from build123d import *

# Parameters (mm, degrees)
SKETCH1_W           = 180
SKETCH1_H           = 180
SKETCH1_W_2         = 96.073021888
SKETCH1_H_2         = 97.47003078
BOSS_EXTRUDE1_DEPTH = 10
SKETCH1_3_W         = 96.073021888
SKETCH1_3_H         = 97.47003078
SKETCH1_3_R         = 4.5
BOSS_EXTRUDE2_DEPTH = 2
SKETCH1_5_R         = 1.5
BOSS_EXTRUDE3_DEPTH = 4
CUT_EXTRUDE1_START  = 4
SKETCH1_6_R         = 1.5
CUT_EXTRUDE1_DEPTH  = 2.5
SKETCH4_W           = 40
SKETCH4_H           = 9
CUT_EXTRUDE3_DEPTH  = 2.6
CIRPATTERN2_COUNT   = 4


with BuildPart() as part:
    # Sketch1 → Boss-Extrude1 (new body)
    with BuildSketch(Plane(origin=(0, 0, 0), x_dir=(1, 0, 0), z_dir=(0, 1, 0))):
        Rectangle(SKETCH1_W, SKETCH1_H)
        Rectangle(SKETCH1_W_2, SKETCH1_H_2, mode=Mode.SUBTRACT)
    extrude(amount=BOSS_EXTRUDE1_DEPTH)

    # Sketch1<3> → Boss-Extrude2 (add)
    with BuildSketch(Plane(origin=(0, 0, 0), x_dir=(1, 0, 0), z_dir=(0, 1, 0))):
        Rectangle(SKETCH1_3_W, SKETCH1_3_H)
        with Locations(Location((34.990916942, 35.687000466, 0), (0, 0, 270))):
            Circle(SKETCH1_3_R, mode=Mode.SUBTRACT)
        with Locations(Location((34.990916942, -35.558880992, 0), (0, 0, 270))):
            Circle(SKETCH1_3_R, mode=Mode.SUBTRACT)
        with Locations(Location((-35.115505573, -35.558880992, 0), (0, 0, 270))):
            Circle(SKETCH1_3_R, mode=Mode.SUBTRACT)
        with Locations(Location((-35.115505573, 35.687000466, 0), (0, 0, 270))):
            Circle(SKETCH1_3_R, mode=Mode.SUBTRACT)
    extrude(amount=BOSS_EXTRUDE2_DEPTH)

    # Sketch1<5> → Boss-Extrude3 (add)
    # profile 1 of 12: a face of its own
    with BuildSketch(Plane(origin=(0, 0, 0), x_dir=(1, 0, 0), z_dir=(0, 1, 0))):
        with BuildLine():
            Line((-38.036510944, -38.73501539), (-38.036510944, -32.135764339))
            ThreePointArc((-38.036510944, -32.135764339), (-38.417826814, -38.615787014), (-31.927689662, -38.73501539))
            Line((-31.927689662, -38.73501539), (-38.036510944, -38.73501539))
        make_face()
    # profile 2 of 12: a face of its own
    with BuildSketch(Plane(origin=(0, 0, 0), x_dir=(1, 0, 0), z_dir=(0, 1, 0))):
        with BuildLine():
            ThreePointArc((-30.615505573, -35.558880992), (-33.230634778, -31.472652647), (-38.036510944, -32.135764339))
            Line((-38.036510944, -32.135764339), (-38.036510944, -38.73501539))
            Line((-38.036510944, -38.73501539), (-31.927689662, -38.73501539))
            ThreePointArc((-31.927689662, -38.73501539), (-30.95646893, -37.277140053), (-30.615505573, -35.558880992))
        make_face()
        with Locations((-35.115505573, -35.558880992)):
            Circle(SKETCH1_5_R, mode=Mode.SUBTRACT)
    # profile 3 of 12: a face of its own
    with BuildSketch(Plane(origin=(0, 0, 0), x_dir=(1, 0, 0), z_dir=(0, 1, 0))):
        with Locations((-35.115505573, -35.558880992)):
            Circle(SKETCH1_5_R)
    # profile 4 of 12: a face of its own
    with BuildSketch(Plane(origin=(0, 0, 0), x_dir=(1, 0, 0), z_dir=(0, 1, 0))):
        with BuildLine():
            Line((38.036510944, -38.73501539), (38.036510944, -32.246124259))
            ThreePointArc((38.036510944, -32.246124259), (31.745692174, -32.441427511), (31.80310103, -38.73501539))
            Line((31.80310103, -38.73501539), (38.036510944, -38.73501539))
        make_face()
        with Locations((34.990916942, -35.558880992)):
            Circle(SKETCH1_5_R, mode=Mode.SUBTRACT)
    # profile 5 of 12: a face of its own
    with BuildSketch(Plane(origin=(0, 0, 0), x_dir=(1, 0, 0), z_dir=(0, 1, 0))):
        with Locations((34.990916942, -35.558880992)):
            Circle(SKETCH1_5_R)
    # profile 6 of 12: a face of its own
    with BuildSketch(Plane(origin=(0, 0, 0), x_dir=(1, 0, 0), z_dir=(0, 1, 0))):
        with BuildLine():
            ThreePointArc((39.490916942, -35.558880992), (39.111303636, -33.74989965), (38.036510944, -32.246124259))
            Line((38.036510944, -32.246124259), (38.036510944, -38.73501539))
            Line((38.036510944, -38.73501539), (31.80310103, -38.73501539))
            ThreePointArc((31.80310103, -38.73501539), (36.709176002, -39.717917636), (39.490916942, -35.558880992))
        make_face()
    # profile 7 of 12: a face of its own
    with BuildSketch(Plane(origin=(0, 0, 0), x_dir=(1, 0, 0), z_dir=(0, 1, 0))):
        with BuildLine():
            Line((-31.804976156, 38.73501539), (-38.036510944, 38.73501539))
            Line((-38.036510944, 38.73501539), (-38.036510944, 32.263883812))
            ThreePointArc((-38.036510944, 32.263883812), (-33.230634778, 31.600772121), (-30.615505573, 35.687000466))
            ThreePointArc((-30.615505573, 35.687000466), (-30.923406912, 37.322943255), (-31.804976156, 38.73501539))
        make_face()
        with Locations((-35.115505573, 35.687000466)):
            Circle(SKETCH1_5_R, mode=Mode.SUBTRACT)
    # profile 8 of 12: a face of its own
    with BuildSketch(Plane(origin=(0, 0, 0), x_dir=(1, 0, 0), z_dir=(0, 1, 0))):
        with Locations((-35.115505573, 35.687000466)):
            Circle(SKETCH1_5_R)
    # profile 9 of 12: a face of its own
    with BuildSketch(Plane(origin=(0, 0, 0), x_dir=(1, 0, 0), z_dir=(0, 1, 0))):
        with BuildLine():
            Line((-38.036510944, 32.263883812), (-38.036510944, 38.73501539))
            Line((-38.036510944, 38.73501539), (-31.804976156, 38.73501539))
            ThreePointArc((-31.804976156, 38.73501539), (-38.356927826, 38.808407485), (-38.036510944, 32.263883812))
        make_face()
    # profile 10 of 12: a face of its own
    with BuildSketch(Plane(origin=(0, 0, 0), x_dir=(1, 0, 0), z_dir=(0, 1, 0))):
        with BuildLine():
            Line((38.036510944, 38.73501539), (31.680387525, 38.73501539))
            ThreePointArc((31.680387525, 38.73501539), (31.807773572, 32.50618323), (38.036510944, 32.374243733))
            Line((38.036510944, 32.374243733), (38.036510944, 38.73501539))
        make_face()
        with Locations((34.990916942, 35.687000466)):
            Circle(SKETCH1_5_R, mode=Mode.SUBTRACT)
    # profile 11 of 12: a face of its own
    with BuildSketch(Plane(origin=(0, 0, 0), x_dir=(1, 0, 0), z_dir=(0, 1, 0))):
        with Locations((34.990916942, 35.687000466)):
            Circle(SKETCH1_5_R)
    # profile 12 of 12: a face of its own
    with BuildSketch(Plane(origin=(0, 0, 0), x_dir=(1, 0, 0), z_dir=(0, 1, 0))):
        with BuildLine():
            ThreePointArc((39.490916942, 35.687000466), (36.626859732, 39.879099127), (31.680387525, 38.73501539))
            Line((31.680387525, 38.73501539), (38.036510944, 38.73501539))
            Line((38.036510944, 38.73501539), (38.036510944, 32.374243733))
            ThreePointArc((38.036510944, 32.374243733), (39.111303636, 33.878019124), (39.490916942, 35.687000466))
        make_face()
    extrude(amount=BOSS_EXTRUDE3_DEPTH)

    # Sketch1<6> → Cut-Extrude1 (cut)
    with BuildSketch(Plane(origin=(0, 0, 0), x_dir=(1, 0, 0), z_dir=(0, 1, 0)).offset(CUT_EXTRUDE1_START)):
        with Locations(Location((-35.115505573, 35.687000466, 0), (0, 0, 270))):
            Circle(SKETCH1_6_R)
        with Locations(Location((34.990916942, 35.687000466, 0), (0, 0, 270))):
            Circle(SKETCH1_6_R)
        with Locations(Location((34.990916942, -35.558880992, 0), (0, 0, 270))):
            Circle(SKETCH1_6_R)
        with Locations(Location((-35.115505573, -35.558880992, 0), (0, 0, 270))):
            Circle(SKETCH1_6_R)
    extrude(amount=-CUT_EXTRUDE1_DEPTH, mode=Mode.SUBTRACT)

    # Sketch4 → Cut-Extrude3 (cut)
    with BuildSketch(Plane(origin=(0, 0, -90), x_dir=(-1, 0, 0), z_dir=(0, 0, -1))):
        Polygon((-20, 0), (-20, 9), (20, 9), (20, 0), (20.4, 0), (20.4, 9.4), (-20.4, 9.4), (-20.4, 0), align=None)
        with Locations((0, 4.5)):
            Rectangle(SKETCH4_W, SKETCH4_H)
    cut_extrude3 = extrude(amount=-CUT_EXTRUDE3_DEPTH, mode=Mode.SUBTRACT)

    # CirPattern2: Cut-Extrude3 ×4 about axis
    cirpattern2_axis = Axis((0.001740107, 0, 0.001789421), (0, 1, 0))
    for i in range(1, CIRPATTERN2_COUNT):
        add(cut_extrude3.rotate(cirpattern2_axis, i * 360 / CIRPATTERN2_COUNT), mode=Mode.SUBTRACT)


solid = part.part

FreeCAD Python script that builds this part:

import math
import FreeCAD as App
import Part
import Sketcher
from FreeCAD import Vector


def add_polygon(sketch, points):
    """Adds a closed chain of lines whose ends are joined by coincident constraints."""
    first, n = sketch.GeometryCount, len(points)
    for a, b in zip(points, points[1:] + points[:1]):
        sketch.addGeometry(Part.LineSegment(App.Vector(*a, 0), App.Vector(*b, 0)), False)
    for i in range(n):
        sketch.addConstraint(Sketcher.Constraint("Coincident", first + i, 2, first + (i + 1) % n, 1))

doc = App.newDocument("Part")
body = doc.addObject("PartDesign::Body", "Body")

sketch1 = body.newObject("Sketcher::SketchObject", "Sketch")
sketch1.AttachmentSupport = (doc.getObject("XZ_Plane"), [""])
sketch1.MapMode = "FlatFace"
add_polygon(sketch1, [(-90, -90), (-90, 90), (90, 90), (90, -90)])
add_polygon(sketch1, [(48, 49), (-48, 49), (-48, -49), (48, -49)])
sketch1.addConstraint(Sketcher.Constraint("Vertical", 0))
sketch1.addConstraint(Sketcher.Constraint("Horizontal", 1))
sketch1.addConstraint(Sketcher.Constraint("Vertical", 2))
sketch1.addConstraint(Sketcher.Constraint("Horizontal", 3))
sketch1.addConstraint(Sketcher.Constraint("Horizontal", 4))
sketch1.addConstraint(Sketcher.Constraint("Vertical", 5))
sketch1.addConstraint(Sketcher.Constraint("Horizontal", 6))
sketch1.addConstraint(Sketcher.Constraint("Vertical", 7))
sketch1.addConstraint(Sketcher.Constraint("Symmetric", 0, 2, 2, 2, -1, 1))
sketch1.addConstraint(Sketcher.Constraint("Symmetric", 4, 2, 6, 2, -1, 1))
sketch1.addConstraint(Sketcher.Constraint("Equal", 3, 0))
sketch1.addConstraint(Sketcher.Constraint("DistanceX", 1, 1, 1, 2, 180.0))
sketch1.addConstraint(Sketcher.Constraint("DistanceX", 4, 2, 4, 1, 96.073022))
sketch1.addConstraint(Sketcher.Constraint("DistanceY", 5, 2, 5, 1, 97.470031))
pad1 = body.newObject("PartDesign::Pad", "Pad")
pad1.Profile = sketch1
pad1.Length = 10
pad1.Reversed = True

sketch2 = body.newObject("Sketcher::SketchObject", "Sketch001")
sketch2.AttachmentSupport = (doc.getObject("XZ_Plane"), [""])
sketch2.MapMode = "FlatFace"
add_polygon(sketch2, [(-48, -48.7), (-48, 48.7), (48, 48.7), (48, -48.7)])
sketch2.addGeometry(Part.Circle(Vector(-35.1, 35.6, 0), Vector(0, 0, 1), 4.5), False)
sketch2.addGeometry(Part.Circle(Vector(35, 35.6, 0), Vector(0, 0, 1), 4.5), False)
sketch2.addGeometry(Part.Circle(Vector(-35.1, -35.7, 0), Vector(0, 0, 1), 4.5), False)
sketch2.addGeometry(Part.Circle(Vector(35, -35.7, 0), Vector(0, 0, 1), 4.5), False)
sketch2.addConstraint(Sketcher.Constraint("Vertical", 0))
sketch2.addConstraint(Sketcher.Constraint("Horizontal", 1))
sketch2.addConstraint(Sketcher.Constraint("Vertical", 2))
sketch2.addConstraint(Sketcher.Constraint("Horizontal", 3))
sketch2.addConstraint(Sketcher.Constraint("Equal", 4, 5))
sketch2.addConstraint(Sketcher.Constraint("Equal", 5, 6))
sketch2.addConstraint(Sketcher.Constraint("Equal", 6, 7))
sketch2.addConstraint(Sketcher.Constraint("Symmetric", 0, 2, 2, 2, -1, 1))
sketch2.addConstraint(Sketcher.Constraint("Horizontal", 4, 3, 5, 3))
sketch2.addConstraint(Sketcher.Constraint("Horizontal", 6, 3, 7, 3))
sketch2.addConstraint(Sketcher.Constraint("Vertical", 4, 3, 6, 3))
sketch2.addConstraint(Sketcher.Constraint("Vertical", 5, 3, 7, 3))
sketch2.addConstraint(Sketcher.Constraint("Diameter", 4, 9.0))
sketch2.addConstraint(Sketcher.Constraint("DistanceY", 6, 3, -1, 1, 35.687))
sketch2.addConstraint(Sketcher.Constraint("DistanceX", 1, 1, 1, 2, 96.073022))
sketch2.addConstraint(Sketcher.Constraint("DistanceY", 0, 1, 0, 2, 97.470031))
sketch2.addConstraint(Sketcher.Constraint("DistanceY", -1, 1, 4, 3, 35.558881))
sketch2.addConstraint(Sketcher.Constraint("DistanceX", 4, 3, -1, 1, 35.115506))
sketch2.addConstraint(Sketcher.Constraint("DistanceX", -1, 1, 5, 3, 34.990917))
pad2 = body.newObject("PartDesign::Pad", "Pad001")
pad2.Profile = sketch2
pad2.Length = 2
pad2.Reversed = True

sketch3 = body.newObject("Sketcher::SketchObject", "Sketch002")
sketch3.AttachmentSupport = (doc.getObject("XZ_Plane"), [""])
sketch3.MapMode = "FlatFace"
sketch3.addGeometry(Part.ArcOfCircle(Part.Circle(Vector(-35.1, 35.6, 0), Vector(0, 0, 1), 4.5), math.radians(45), math.radians(230)), False)
sketch3.addGeometry(Part.ArcOfCircle(Part.Circle(Vector(-35.1, 35.6, 0), Vector(0, 0, 1), 4.5), math.radians(0), math.radians(45)), False)
sketch3.addGeometry(Part.ArcOfCircle(Part.Circle(Vector(-35.1, 35.6, 0), Vector(0, 0, 1), 4.5), math.radians(-130), math.radians(0)), False)
sketch3.addGeometry(Part.ArcOfCircle(Part.Circle(Vector(35, 35.6, 0), Vector(0, 0, 1), 4.5), math.radians(135), math.radians(313)), False)
sketch3.addGeometry(Part.ArcOfCircle(Part.Circle(Vector(35, 35.6, 0), Vector(0, 0, 1), 4.5), math.radians(0), math.radians(135)), False)
sketch3.addGeometry(Part.ArcOfCircle(Part.Circle(Vector(35, 35.6, 0), Vector(0, 0, 1), 4.5), math.radians(-47), math.radians(0)), False)
sketch3.addGeometry(Part.ArcOfCircle(Part.Circle(Vector(-35.1, -35.7, 0), Vector(0, 0, 1), 4.5), math.radians(-43), math.radians(0)), False)
sketch3.addGeometry(Part.ArcOfCircle(Part.Circle(Vector(-35.1, -35.7, 0), Vector(0, 0, 1), 4.5), math.radians(130), math.radians(317)), False)
sketch3.addGeometry(Part.ArcOfCircle(Part.Circle(Vector(-35.1, -35.7, 0), Vector(0, 0, 1), 4.5), math.radians(0), math.radians(130)), False)
sketch3.addGeometry(Part.ArcOfCircle(Part.Circle(Vector(35, -35.7, 0), Vector(0, 0, 1), 4.5), math.radians(47), math.radians(223)), False)
sketch3.addGeometry(Part.ArcOfCircle(Part.Circle(Vector(35, -35.7, 0), Vector(0, 0, 1), 4.5), math.radians(0), math.radians(47)), False)
sketch3.addGeometry(Part.ArcOfCircle(Part.Circle(Vector(35, -35.7, 0), Vector(0, 0, 1), 4.5), math.radians(-137), math.radians(0)), False)
sketch3.addConstraint(Sketcher.Constraint("Tangent", 0, 1, 1, 2))
sketch3.addConstraint(Sketcher.Constraint("Tangent", 1, 1, 2, 2))
sketch3.addConstraint(Sketcher.Constraint("Tangent", 2, 1, 0, 2))
sketch3.addConstraint(Sketcher.Constraint("Tangent", 3, 1, 4, 2))
sketch3.addConstraint(Sketcher.Constraint("Tangent", 4, 1, 5, 2))
sketch3.addConstraint(Sketcher.Constraint("Tangent", 5, 1, 3, 2))
sketch3.addConstraint(Sketcher.Constraint("Tangent", 6, 1, 7, 2))
sketch3.addConstraint(Sketcher.Constraint("Tangent", 7, 1, 8, 2))
sketch3.addConstraint(Sketcher.Constraint("Tangent", 8, 1, 6, 2))
sketch3.addConstraint(Sketcher.Constraint("Tangent", 9, 1, 10, 2))
sketch3.addConstraint(Sketcher.Constraint("Tangent", 10, 1, 11, 2))
sketch3.addConstraint(Sketcher.Constraint("Tangent", 11, 1, 9, 2))
sketch3.addConstraint(Sketcher.Constraint("Equal", 2, 3))
sketch3.addConstraint(Sketcher.Constraint("Equal", 5, 6))
sketch3.addConstraint(Sketcher.Constraint("Equal", 8, 9))
sketch3.addConstraint(Sketcher.Constraint("Horizontal", 2, 3, 3, 3))
sketch3.addConstraint(Sketcher.Constraint("Horizontal", 8, 3, 9, 3))
sketch3.addConstraint(Sketcher.Constraint("Horizontal", 5, 3, 1, 1))
sketch3.addConstraint(Sketcher.Constraint("Horizontal", 0, 1, 3, 1))
sketch3.addConstraint(Sketcher.Constraint("Horizontal", 1, 1, 4, 1))
sketch3.addConstraint(Sketcher.Constraint("Horizontal", 11, 3, 8, 1))
sketch3.addConstraint(Sketcher.Constraint("Horizontal", 8, 1, 10, 1))
sketch3.addConstraint(Sketcher.Constraint("Horizontal", 6, 1, 11, 1))
sketch3.addConstraint(Sketcher.Constraint("Vertical", 2, 3, 6, 3))
sketch3.addConstraint(Sketcher.Constraint("Vertical", 5, 3, 9, 3))
sketch3.addConstraint(Sketcher.Constraint("Vertical", 2, 1, 7, 1))
sketch3.addConstraint(Sketcher.Constraint("Vertical", 5, 1, 9, 1))
sketch3.addConstraint(Sketcher.Constraint("Radius", 0, 4.5))
sketch3.addConstraint(Sketcher.Constraint("DistanceY", 6, 3, -1, 1, 35.687))
sketch3.addConstraint(Sketcher.Constraint("DistanceX", -1, 1, 3, 1, 31.803101))
sketch3.addConstraint(Sketcher.Constraint("DistanceY", -1, 1, 0, 3, 35.558881))
sketch3.addConstraint(Sketcher.Constraint("DistanceX", 0, 1, -1, 1, 31.92769))
sketch3.addConstraint(Sketcher.Constraint("DistanceX", 2, 1, -1, 1, 38.036511))
sketch3.addConstraint(Sketcher.Constraint("DistanceX", -1, 1, 5, 1, 38.036511))
sketch3.addConstraint(Sketcher.Constraint("DistanceY", 2, 1, 0, 1, 6.599251))
sketch3.addConstraint(Sketcher.Constraint("DistanceX", 7, 3, 6, 1, 3.310529))
pad3 = body.newObject("PartDesign::Pad", "Pad002")
pad3.Profile = sketch3
pad3.Length = 4
pad3.Reversed = True

sketch4 = body.newObject("Sketcher::SketchObject", "Sketch003")
sketch4.AttachmentSupport = (doc.getObject("XZ_Plane"), [""])
sketch4.MapMode = "FlatFace"
sketch4.AttachmentOffset = App.Placement(Vector(0, 0, -4), App.Rotation())
sketch4.addGeometry(Part.Circle(Vector(-35.1, -35.7, 0), Vector(0, 0, 1), 1.5), False)
sketch4.addGeometry(Part.Circle(Vector(35, -35.7, 0), Vector(0, 0, 1), 1.5), False)
sketch4.addGeometry(Part.Circle(Vector(35, 35.6, 0), Vector(0, 0, 1), 1.5), False)
sketch4.addGeometry(Part.Circle(Vector(-35.1, 35.6, 0), Vector(0, 0, 1), 1.5), False)
sketch4.addConstraint(Sketcher.Constraint("Equal", 0, 1))
sketch4.addConstraint(Sketcher.Constraint("Equal", 1, 2))
sketch4.addConstraint(Sketcher.Constraint("Equal", 2, 3))
sketch4.addConstraint(Sketcher.Constraint("Horizontal", 0, 3, 1, 3))
sketch4.addConstraint(Sketcher.Constraint("Horizontal", 2, 3, 3, 3))
sketch4.addConstraint(Sketcher.Constraint("Vertical", 1, 3, 2, 3))
sketch4.addConstraint(Sketcher.Constraint("Vertical", 0, 3, 3, 3))
sketch4.addConstraint(Sketcher.Constraint("Diameter", 0, 3.0))
sketch4.addConstraint(Sketcher.Constraint("DistanceY", 0, 3, -1, 1, 35.687))
sketch4.addConstraint(Sketcher.Constraint("DistanceY", -1, 1, 2, 3, 35.558881))
sketch4.addConstraint(Sketcher.Constraint("DistanceX", 0, 3, -1, 1, 35.115506))
sketch4.addConstraint(Sketcher.Constraint("DistanceX", -1, 1, 1, 3, 34.990917))
pocket1 = body.newObject("PartDesign::Pocket", "Pocket")
pocket1.Profile = sketch4
pocket1.Length = 2.5
pocket1.Reversed = True

sketch5 = body.newObject("Sketcher::SketchObject", "Sketch004")
sketch5.AttachmentSupport = (doc.getObject("XY_Plane"), [""])
sketch5.MapMode = "FlatFace"
sketch5.AttachmentOffset = App.Placement(Vector(0, 0, -90), App.Rotation())
add_polygon(sketch5, [(-20, 0), (-20, 9), (20, 9), (20, 0)])
sketch5.addConstraint(Sketcher.Constraint("Vertical", 0))
sketch5.addConstraint(Sketcher.Constraint("Horizontal", 1))
sketch5.addConstraint(Sketcher.Constraint("Vertical", 2))
sketch5.addConstraint(Sketcher.Constraint("Horizontal", 3))
sketch5.addConstraint(Sketcher.Constraint("Symmetric", 2, 2, 3, 2, -1, 1))
sketch5.addConstraint(Sketcher.Constraint("DistanceX", 1, 1, 1, 2, 40.8))
sketch5.addConstraint(Sketcher.Constraint("DistanceY", 0, 1, 0, 2, 9.4))
pocket2 = body.newObject("PartDesign::Pocket", "Pocket001")
pocket2.Profile = sketch5
pocket2.Length = 2.6
pocket2.Reversed = True
doc.recompute()

datumline = body.newObject("PartDesign::Line", "DatumLine")
datumline.Placement = App.Placement(Vector(0.00174, 0, 0.001789), App.Rotation(Vector(0, 0, 1), Vector(0, 1, 0)))
polarpattern = body.newObject("PartDesign::PolarPattern", "PolarPattern")
polarpattern.Originals = [pocket2]
polarpattern.Axis = (datumline, [""])
polarpattern.Angle = 360
polarpattern.Occurrences = 4
body.Tip = polarpattern

doc.recompute()
